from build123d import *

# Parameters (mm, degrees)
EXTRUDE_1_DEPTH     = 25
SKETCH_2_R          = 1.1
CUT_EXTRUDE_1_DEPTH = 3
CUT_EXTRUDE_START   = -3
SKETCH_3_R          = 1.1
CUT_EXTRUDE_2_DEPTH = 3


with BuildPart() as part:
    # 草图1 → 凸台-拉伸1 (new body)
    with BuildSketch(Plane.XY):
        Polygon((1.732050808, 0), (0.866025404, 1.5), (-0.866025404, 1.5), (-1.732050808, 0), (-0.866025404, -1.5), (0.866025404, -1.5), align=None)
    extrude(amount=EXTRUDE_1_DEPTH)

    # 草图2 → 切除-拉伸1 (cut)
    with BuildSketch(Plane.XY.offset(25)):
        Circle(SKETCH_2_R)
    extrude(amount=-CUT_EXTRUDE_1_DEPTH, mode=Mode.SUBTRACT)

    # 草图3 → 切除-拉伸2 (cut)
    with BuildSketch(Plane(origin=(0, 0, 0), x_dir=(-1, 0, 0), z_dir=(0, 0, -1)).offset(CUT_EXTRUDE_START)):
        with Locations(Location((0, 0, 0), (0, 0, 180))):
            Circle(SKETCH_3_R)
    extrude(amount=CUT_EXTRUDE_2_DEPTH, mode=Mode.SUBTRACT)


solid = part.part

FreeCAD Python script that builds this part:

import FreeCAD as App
import Part
import Sketcher
from FreeCAD import Vector
Q = App.Units.Quantity

doc = App.newDocument("Part")
params = doc.addObject("Spreadsheet::Sheet", "Params")
for row, (alias, value) in enumerate([
    ("pad1_length", "25 mm"),
    ("sketch2_diameter", "2.2 mm"),
    ("pocket1_length", "3 mm"),
    ("sketch3_diameter", "2.2 mm"),
    ("pocket2_length", "3 mm"),
], start=1):
    params.set(f"A{row}", alias)
    params.set(f"B{row}", "=" + value)
    params.setAlias(f"B{row}", alias)

body = doc.addObject("PartDesign::Body", "Body")

# Sketch on XY plane
sketch1 = body.newObject("Sketcher::SketchObject", "Sketch")
sketch1.AttachmentSupport = (doc.getObject("XY_Plane"), [""])
sketch1.MapMode = "FlatFace"
sketch1.addGeometry([
    Part.LineSegment(Vector(1.7, 0, 0), Vector(0.9, 1.5, 0)),  # 0
    Part.LineSegment(Vector(0.9, 1.5, 0), Vector(-0.9, 1.5, 0)),  # 1
    Part.LineSegment(Vector(-0.9, 1.5, 0), Vector(-1.7, 0, 0)),  # 2
    Part.LineSegment(Vector(-1.7, 0, 0), Vector(-0.9, -1.5, 0)),  # 3
    Part.LineSegment(Vector(-0.9, -1.5, 0), Vector(0.9, -1.5, 0)),  # 4
    Part.LineSegment(Vector(0.9, -1.5, 0), Vector(1.7, 0, 0)),  # 5
], False)
sketch1.addConstraint([
    Sketcher.Constraint("Coincident", 0, 2, 1, 1),
    Sketcher.Constraint("Coincident", 1, 2, 2, 1),
    Sketcher.Constraint("Coincident", 2, 2, 3, 1),
    Sketcher.Constraint("Coincident", 3, 2, 4, 1),
    Sketcher.Constraint("Coincident", 4, 2, 5, 1),
    Sketcher.Constraint("Coincident", 5, 2, 0, 1),
    Sketcher.Constraint("Horizontal", 1),
    Sketcher.Constraint("Horizontal", 4),
    Sketcher.Constraint("Symmetric", 0, 2, 3, 2, -1, 1),
    Sketcher.Constraint("Symmetric", 2, 2, 5, 2, -1, 1),
    Sketcher.Constraint("PointOnObject", 2, 2, -1),
    Sketcher.Constraint("Parallel", 2, 5),
    Sketcher.Constraint("Vertical", 1, 2, 3, 2),
    Sketcher.Constraint("Angle", 0, Q("120 deg")),
    Sketcher.Constraint("DistanceY", 3, 2, 1, 2, 3.0),
    Sketcher.Constraint("DistanceX", 1, 2, 1, 1, 1.732051),
])
pad1 = body.newObject("PartDesign::Pad", "Pad")
pad1.Profile = sketch1
pad1.setExpression("Length", "Params.pad1_length")

# Sketch on XY plane
sketch2 = body.newObject("Sketcher::SketchObject", "Sketch001")
sketch2.AttachmentSupport = (doc.getObject("XY_Plane"), [""])
sketch2.MapMode = "FlatFace"
sketch2.AttachmentOffset = App.Placement(Vector(0, 0, 25), App.Rotation())
sketch2.addGeometry(Part.Circle(Vector(0, 0, 0), Vector(0, 0, 1), 1.1), False)
sketch2.addConstraint([
    Sketcher.Constraint("Coincident", 0, 3, -1, 1),
    Sketcher.Constraint("Diameter", 0, 2.2),
])
sketch2.setExpression("Constraints[1]", "Params.sketch2_diameter")
pocket1 = body.newObject("PartDesign::Pocket", "Pocket")
pocket1.Profile = sketch2
pocket1.setExpression("Length", "Params.pocket1_length")

# Sketch on XY plane
sketch3 = body.newObject("Sketcher::SketchObject", "Sketch002")
sketch3.AttachmentSupport = (doc.getObject("XY_Plane"), [""])
sketch3.MapMode = "FlatFace"
sketch3.AttachmentOffset = App.Placement(Vector(0, 0, 3), App.Rotation())
sketch3.addGeometry(Part.Circle(Vector(0, 0, 0), Vector(0, 0, 1), 1.1), False)
sketch3.addConstraint([
    Sketcher.Constraint("Coincident", 0, 3, -1, 1),
    Sketcher.Constraint("Diameter", 0, 2.2),
])
sketch3.setExpression("Constraints[1]", "Params.sketch3_diameter")
pocket2 = body.newObject("PartDesign::Pocket", "Pocket001")
pocket2.Profile = sketch3
pocket2.setExpression("Length", "Params.pocket2_length")

doc.recompute()
